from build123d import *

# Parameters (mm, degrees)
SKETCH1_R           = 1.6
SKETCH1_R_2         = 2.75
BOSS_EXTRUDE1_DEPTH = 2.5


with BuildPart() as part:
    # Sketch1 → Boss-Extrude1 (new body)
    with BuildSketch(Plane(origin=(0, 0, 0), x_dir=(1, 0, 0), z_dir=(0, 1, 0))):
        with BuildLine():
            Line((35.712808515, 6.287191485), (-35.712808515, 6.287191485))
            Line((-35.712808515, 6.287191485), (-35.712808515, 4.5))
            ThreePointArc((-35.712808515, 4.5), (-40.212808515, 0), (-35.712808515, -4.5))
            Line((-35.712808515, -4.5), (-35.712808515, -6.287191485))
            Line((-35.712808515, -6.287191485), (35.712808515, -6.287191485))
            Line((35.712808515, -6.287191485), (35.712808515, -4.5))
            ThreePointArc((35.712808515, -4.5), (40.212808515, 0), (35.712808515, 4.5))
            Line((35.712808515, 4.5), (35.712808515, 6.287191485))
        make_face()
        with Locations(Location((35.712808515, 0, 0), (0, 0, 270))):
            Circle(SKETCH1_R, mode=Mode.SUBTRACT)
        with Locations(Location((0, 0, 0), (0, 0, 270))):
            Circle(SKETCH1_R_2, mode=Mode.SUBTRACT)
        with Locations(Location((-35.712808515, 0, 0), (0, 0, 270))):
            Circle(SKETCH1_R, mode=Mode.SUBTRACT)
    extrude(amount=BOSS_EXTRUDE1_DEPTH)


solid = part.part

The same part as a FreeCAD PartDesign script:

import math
import FreeCAD as App
import Part
import Sketcher

V = App.Vector

doc = App.newDocument("Part")
params = doc.addObject("Spreadsheet::Sheet", "Params")
for row, (alias, value) in enumerate([
    ("sketch1_diameter", "3.2 mm"),
    ("sketch1_diameter2", "5.5 mm"),
    ("sketch1_radius", "4.5 mm"),
    ("pad1_length", "2.5 mm"),
], start=1):
    params.set(f"A{row}", alias)
    params.set(f"B{row}", "=" + value)
    params.setAlias(f"B{row}", alias)

body = doc.addObject("PartDesign::Body", "Body")

sketch1 = body.newObject("Sketcher::SketchObject", "Sketch")
sketch1.AttachmentSupport = (doc.getObject("XZ_Plane"), [""])
sketch1.MapMode = "FlatFace"
sketch1.addGeometry(Part.LineSegment(V(35.7, -6.3, 0), V(-35.7, -6.3, 0)), False)
sketch1.addGeometry(Part.LineSegment(V(-35.7, -6.3, 0), V(-35.7, -4.5, 0)), False)
sketch1.addGeometry(Part.ArcOfCircle(Part.Circle(V(-35.7, 0, 0), V(0, 0, 1), 4.5), math.radians(90), math.radians(270)), False)
sketch1.addGeometry(Part.LineSegment(V(-35.7, 4.5, 0), V(-35.7, 6.3, 0)), False)
sketch1.addGeometry(Part.LineSegment(V(-35.7, 6.3, 0), V(35.7, 6.3, 0)), False)
sketch1.addGeometry(Part.LineSegment(V(35.7, 6.3, 0), V(35.7, 4.5, 0)), False)
sketch1.addGeometry(Part.ArcOfCircle(Part.Circle(V(35.7, 0, 0), V(0, 0, 1), 4.5), math.radians(-90), math.radians(90)), False)
sketch1.addGeometry(Part.LineSegment(V(35.7, -4.5, 0), V(35.7, -6.3, 0)), False)
sketch1.addGeometry(Part.Circle(V(-35.7, 0, 0), V(0, 0, 1), 1.6), False)
sketch1.addGeometry(Part.Circle(V(0, 0, 0), V(0, 0, 1), 2.8), False)
sketch1.addGeometry(Part.Circle(V(35.7, 0, 0), V(0, 0, 1), 1.6), False)
sketch1.addConstraint(Sketcher.Constraint("Coincident", 0, 2, 1, 1))
sketch1.addConstraint(Sketcher.Constraint("Coincident", 1, 2, 2, 2))
sketch1.addConstraint(Sketcher.Constraint("Coincident", 2, 1, 3, 1))
sketch1.addConstraint(Sketcher.Constraint("Coincident", 3, 2, 4, 1))
sketch1.addConstraint(Sketcher.Constraint("Coincident", 4, 2, 5, 1))
sketch1.addConstraint(Sketcher.Constraint("Coincident", 5, 2, 6, 2))
sketch1.addConstraint(Sketcher.Constraint("Coincident", 6, 1, 7, 1))
sketch1.addConstraint(Sketcher.Constraint("Coincident", 7, 2, 0, 1))
sketch1.addConstraint(Sketcher.Constraint("Horizontal", 0))
sketch1.addConstraint(Sketcher.Constraint("Vertical", 1))
sketch1.addConstraint(Sketcher.Constraint("Vertical", 3))
sketch1.addConstraint(Sketcher.Constraint("Horizontal", 4))
sketch1.addConstraint(Sketcher.Constraint("Vertical", 5))
sketch1.addConstraint(Sketcher.Constraint("Vertical", 7))
sketch1.addConstraint(Sketcher.Constraint("Coincident", 9, 3, -1, 1))
sketch1.addConstraint(Sketcher.Constraint("Coincident", 8, 3, 2, 3))
sketch1.addConstraint(Sketcher.Constraint("Coincident", 10, 3, 6, 3))
sketch1.addConstraint(Sketcher.Constraint("Equal", 2, 6))
sketch1.addConstraint(Sketcher.Constraint("Equal", 8, 10))
sketch1.addConstraint(Sketcher.Constraint("Symmetric", 2, 3, 6, 3, -1, 1))
sketch1.addConstraint(Sketcher.Constraint("Symmetric", 0, 2, 4, 2, -1, 1))
sketch1.addConstraint(Sketcher.Constraint("Symmetric", 2, 1, 5, 2, -2))
sketch1.addConstraint(Sketcher.Constraint("Vertical", 8, 3, 0, 2))
sketch1.addConstraint(Sketcher.Constraint("Vertical", 5, 2, 6, 1))
sketch1.addConstraint(Sketcher.Constraint("Diameter", 8, 3.2))
sketch1.addConstraint(Sketcher.Constraint("Diameter", 9, 5.5))
sketch1.addConstraint(Sketcher.Constraint("Radius", 2, 4.5))
sketch1.addConstraint(Sketcher.Constraint("DistanceY", 1, 1, 1, 2, 1.787191))
sketch1.addConstraint(Sketcher.Constraint("DistanceX", 0, 2, 0, 1, 71.425617))
sketch1.setExpression("Constraints[24]", "Params.sketch1_diameter")
sketch1.setExpression("Constraints[25]", "Params.sketch1_diameter2")
sketch1.setExpression("Constraints[26]", "Params.sketch1_radius")
pad1 = body.newObject("PartDesign::Pad", "Pad")
pad1.Profile = sketch1
pad1.setExpression("Length", "Params.pad1_length")
pad1.Reversed = True

doc.recompute()
